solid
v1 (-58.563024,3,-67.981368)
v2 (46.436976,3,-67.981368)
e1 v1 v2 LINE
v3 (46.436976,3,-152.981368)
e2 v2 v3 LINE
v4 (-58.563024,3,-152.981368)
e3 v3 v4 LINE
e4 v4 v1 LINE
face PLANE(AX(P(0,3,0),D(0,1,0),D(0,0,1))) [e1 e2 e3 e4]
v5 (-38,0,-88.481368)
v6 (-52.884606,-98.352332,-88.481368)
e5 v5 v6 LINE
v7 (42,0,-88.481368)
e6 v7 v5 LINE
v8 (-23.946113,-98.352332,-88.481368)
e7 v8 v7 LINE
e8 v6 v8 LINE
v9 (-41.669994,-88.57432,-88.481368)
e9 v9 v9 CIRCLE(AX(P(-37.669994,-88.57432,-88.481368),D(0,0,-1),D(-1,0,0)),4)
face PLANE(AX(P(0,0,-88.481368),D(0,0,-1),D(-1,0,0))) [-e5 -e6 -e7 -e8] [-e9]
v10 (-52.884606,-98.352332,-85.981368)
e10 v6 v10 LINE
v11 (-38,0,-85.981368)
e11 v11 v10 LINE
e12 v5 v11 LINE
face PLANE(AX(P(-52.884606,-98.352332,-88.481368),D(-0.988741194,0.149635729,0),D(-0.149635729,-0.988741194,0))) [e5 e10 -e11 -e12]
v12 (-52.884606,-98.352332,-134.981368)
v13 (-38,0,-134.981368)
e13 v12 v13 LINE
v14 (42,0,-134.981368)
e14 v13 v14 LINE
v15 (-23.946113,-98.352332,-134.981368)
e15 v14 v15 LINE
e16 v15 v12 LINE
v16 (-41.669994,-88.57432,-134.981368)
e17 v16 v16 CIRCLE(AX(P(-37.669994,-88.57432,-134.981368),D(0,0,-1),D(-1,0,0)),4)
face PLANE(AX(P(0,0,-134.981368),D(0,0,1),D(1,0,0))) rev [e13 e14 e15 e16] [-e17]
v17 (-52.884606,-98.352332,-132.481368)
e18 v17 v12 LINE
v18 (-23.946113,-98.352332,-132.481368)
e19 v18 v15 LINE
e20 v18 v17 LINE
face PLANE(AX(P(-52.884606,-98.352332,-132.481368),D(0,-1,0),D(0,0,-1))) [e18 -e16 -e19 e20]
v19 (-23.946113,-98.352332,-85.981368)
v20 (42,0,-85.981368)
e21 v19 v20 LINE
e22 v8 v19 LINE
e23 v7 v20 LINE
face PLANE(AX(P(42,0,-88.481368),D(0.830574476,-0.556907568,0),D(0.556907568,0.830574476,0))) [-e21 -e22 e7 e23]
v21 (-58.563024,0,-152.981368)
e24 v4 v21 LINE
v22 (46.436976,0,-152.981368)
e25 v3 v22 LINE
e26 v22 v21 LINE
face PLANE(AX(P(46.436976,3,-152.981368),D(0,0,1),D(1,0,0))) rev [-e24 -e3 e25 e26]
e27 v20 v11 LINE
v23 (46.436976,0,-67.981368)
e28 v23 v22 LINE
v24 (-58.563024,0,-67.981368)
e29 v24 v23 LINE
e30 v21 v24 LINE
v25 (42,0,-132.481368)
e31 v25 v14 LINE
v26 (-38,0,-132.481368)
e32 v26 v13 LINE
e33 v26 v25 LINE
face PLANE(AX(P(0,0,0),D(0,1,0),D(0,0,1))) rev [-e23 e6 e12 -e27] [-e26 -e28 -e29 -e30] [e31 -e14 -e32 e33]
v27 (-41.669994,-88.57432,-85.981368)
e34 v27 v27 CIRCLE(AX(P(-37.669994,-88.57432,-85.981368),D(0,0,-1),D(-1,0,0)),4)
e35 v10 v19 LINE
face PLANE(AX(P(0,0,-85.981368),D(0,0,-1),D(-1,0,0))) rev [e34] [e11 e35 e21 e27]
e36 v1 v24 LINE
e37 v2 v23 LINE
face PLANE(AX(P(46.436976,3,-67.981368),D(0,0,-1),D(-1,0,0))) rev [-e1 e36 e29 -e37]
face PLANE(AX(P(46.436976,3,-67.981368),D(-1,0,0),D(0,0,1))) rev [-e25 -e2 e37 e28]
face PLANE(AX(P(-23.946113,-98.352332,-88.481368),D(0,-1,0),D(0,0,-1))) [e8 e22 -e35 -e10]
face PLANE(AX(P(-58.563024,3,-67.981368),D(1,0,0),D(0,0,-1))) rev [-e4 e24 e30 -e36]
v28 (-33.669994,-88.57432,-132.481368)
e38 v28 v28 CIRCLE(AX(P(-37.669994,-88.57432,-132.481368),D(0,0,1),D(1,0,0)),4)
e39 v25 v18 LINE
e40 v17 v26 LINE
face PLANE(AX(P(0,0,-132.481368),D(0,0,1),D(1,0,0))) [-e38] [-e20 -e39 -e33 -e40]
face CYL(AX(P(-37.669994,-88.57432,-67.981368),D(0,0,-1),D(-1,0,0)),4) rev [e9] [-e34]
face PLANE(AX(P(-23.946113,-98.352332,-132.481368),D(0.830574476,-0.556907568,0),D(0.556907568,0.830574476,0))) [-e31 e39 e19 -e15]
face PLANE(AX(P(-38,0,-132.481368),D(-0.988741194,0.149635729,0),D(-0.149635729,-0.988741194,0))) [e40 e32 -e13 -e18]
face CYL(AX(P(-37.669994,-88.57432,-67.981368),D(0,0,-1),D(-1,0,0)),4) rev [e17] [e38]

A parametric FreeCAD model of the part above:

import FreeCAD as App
import Part
import Sketcher

V = App.Vector


def add_polygon(sketch, points):
    """Adds a closed chain of lines whose ends are joined by coincident constraints."""
    first, n = sketch.GeometryCount, len(points)
    for a, b in zip(points, points[1:] + points[:1]):
        sketch.addGeometry(Part.LineSegment(App.Vector(*a, 0), App.Vector(*b, 0)), False)
    for i in range(n):
        sketch.addConstraint(Sketcher.Constraint("Coincident", first + i, 2, first + (i + 1) % n, 1))

doc = App.newDocument("Part")
body = doc.addObject("PartDesign::Body", "Body")

sketch1 = body.newObject("Sketcher::SketchObject", "Sketch")
sketch1.AttachmentSupport = (doc.getObject("XZ_Plane"), [""])
sketch1.MapMode = "FlatFace"
add_polygon(sketch1, [(-58.563024, -152.981368), (-58.563024, -67.981368), (46.436976, -67.981368), (46.436976, -152.981368)])
sketch1.addConstraint(Sketcher.Constraint("Vertical", 0))
sketch1.addConstraint(Sketcher.Constraint("Horizontal", 1))
sketch1.addConstraint(Sketcher.Constraint("Vertical", 2))
sketch1.addConstraint(Sketcher.Constraint("Horizontal", 3))
sketch1.addConstraint(Sketcher.Constraint("DistanceX", 1, 1, 1, 2, 105.0))
sketch1.addConstraint(Sketcher.Constraint("DistanceY", 0, 1, 0, 2, 85.0))
sketch1.addConstraint(Sketcher.Constraint("DistanceX", 0, 2, -1, 1, 58.563024))
sketch1.addConstraint(Sketcher.Constraint("DistanceY", 0, 2, -1, 1, 67.981368))
pad1 = body.newObject("PartDesign::Pad", "Pad")
pad1.Profile = sketch1
pad1.Length = 3
pad1.Reversed = True

sketch2 = body.newObject("Sketcher::SketchObject", "Sketch001")
sketch2.AttachmentSupport = (doc.getObject("XY_Plane"), [""])
sketch2.MapMode = "FlatFace"
sketch2.AttachmentOffset = App.Placement(V(0, 0, -85.981368), App.Rotation())
add_polygon(sketch2, [(42, 0), (-38, 0), (-52.884606, -98.352332), (-23.946113, -98.352332)])
sketch2.addConstraint(Sketcher.Constraint("Horizontal", 0))
sketch2.addConstraint(Sketcher.Constraint("Horizontal", 2))
sketch2.addConstraint(Sketcher.Constraint("PointOnObject", 0, 2, -1))
sketch2.addConstraint(Sketcher.Constraint("DistanceX", 0, 2, 0, 1, 80.0))
sketch2.addConstraint(Sketcher.Constraint("DistanceX", 0, 2, -1, 1, 38.0))
sketch2.addConstraint(Sketcher.Constraint("Distance", 1, 99.472271))
sketch2.addConstraint(Sketcher.Constraint("DistanceX", 2, 1, 2, 2, 28.938493))
sketch2.addConstraint(Sketcher.Constraint("Distance", 3, 118.414826))
pad2 = body.newObject("PartDesign::Pad", "Pad001")
pad2.Profile = sketch2
pad2.Length = 2.5
pad2.Reversed = True

sketch3 = body.newObject("Sketcher::SketchObject", "Sketch002")
sketch3.AttachmentSupport = (doc.getObject("XY_Plane"), [""])
sketch3.MapMode = "FlatFace"
sketch3.AttachmentOffset = App.Placement(V(0, 0, -134.981368), App.Rotation())
add_polygon(sketch3, [(-52.884606, -98.352332), (-38, 0), (42, 0), (-23.946113, -98.352332)])
sketch3.addConstraint(Sketcher.Constraint("Horizontal", 1))
sketch3.addConstraint(Sketcher.Constraint("Horizontal", 3))
sketch3.addConstraint(Sketcher.Constraint("PointOnObject", 0, 2, -1))
sketch3.addConstraint(Sketcher.Constraint("DistanceX", 1, 1, 1, 2, 80.0))
sketch3.addConstraint(Sketcher.Constraint("DistanceX", 0, 2, -1, 1, 38.0))
sketch3.addConstraint(Sketcher.Constraint("Distance", 0, 99.472271))
sketch3.addConstraint(Sketcher.Constraint("DistanceX", 3, 2, 3, 1, 28.938493))
sketch3.addConstraint(Sketcher.Constraint("Distance", 2, 118.414826))
pad3 = body.newObject("PartDesign::Pad", "Pad002")
pad3.Profile = sketch3
pad3.Length = 2.5

sketch4 = body.newObject("Sketcher::SketchObject", "Sketch003")
sketch4.AttachmentSupport = (doc.getObject("XY_Plane"), [""])
sketch4.MapMode = "FlatFace"
sketch4.AttachmentOffset = App.Placement(V(0, 0, -134.981368), App.Rotation())
sketch4.addGeometry(Part.Circle(V(-37.669994, -88.57432, 0), V(0, 0, 1), 4), False)
sketch4.addConstraint(Sketcher.Constraint("Diameter", 0, 8.0))
sketch4.addConstraint(Sketcher.Constraint("DistanceY", 0, 3, -1, 1, 88.57432))
sketch4.addConstraint(Sketcher.Constraint("DistanceX", 0, 3, -1, 1, 37.669994))
pocket1 = body.newObject("PartDesign::Pocket", "Pocket")
pocket1.Profile = sketch4
pocket1.Type = "ThroughAll"
pocket1.Reversed = True

doc.recompute()
